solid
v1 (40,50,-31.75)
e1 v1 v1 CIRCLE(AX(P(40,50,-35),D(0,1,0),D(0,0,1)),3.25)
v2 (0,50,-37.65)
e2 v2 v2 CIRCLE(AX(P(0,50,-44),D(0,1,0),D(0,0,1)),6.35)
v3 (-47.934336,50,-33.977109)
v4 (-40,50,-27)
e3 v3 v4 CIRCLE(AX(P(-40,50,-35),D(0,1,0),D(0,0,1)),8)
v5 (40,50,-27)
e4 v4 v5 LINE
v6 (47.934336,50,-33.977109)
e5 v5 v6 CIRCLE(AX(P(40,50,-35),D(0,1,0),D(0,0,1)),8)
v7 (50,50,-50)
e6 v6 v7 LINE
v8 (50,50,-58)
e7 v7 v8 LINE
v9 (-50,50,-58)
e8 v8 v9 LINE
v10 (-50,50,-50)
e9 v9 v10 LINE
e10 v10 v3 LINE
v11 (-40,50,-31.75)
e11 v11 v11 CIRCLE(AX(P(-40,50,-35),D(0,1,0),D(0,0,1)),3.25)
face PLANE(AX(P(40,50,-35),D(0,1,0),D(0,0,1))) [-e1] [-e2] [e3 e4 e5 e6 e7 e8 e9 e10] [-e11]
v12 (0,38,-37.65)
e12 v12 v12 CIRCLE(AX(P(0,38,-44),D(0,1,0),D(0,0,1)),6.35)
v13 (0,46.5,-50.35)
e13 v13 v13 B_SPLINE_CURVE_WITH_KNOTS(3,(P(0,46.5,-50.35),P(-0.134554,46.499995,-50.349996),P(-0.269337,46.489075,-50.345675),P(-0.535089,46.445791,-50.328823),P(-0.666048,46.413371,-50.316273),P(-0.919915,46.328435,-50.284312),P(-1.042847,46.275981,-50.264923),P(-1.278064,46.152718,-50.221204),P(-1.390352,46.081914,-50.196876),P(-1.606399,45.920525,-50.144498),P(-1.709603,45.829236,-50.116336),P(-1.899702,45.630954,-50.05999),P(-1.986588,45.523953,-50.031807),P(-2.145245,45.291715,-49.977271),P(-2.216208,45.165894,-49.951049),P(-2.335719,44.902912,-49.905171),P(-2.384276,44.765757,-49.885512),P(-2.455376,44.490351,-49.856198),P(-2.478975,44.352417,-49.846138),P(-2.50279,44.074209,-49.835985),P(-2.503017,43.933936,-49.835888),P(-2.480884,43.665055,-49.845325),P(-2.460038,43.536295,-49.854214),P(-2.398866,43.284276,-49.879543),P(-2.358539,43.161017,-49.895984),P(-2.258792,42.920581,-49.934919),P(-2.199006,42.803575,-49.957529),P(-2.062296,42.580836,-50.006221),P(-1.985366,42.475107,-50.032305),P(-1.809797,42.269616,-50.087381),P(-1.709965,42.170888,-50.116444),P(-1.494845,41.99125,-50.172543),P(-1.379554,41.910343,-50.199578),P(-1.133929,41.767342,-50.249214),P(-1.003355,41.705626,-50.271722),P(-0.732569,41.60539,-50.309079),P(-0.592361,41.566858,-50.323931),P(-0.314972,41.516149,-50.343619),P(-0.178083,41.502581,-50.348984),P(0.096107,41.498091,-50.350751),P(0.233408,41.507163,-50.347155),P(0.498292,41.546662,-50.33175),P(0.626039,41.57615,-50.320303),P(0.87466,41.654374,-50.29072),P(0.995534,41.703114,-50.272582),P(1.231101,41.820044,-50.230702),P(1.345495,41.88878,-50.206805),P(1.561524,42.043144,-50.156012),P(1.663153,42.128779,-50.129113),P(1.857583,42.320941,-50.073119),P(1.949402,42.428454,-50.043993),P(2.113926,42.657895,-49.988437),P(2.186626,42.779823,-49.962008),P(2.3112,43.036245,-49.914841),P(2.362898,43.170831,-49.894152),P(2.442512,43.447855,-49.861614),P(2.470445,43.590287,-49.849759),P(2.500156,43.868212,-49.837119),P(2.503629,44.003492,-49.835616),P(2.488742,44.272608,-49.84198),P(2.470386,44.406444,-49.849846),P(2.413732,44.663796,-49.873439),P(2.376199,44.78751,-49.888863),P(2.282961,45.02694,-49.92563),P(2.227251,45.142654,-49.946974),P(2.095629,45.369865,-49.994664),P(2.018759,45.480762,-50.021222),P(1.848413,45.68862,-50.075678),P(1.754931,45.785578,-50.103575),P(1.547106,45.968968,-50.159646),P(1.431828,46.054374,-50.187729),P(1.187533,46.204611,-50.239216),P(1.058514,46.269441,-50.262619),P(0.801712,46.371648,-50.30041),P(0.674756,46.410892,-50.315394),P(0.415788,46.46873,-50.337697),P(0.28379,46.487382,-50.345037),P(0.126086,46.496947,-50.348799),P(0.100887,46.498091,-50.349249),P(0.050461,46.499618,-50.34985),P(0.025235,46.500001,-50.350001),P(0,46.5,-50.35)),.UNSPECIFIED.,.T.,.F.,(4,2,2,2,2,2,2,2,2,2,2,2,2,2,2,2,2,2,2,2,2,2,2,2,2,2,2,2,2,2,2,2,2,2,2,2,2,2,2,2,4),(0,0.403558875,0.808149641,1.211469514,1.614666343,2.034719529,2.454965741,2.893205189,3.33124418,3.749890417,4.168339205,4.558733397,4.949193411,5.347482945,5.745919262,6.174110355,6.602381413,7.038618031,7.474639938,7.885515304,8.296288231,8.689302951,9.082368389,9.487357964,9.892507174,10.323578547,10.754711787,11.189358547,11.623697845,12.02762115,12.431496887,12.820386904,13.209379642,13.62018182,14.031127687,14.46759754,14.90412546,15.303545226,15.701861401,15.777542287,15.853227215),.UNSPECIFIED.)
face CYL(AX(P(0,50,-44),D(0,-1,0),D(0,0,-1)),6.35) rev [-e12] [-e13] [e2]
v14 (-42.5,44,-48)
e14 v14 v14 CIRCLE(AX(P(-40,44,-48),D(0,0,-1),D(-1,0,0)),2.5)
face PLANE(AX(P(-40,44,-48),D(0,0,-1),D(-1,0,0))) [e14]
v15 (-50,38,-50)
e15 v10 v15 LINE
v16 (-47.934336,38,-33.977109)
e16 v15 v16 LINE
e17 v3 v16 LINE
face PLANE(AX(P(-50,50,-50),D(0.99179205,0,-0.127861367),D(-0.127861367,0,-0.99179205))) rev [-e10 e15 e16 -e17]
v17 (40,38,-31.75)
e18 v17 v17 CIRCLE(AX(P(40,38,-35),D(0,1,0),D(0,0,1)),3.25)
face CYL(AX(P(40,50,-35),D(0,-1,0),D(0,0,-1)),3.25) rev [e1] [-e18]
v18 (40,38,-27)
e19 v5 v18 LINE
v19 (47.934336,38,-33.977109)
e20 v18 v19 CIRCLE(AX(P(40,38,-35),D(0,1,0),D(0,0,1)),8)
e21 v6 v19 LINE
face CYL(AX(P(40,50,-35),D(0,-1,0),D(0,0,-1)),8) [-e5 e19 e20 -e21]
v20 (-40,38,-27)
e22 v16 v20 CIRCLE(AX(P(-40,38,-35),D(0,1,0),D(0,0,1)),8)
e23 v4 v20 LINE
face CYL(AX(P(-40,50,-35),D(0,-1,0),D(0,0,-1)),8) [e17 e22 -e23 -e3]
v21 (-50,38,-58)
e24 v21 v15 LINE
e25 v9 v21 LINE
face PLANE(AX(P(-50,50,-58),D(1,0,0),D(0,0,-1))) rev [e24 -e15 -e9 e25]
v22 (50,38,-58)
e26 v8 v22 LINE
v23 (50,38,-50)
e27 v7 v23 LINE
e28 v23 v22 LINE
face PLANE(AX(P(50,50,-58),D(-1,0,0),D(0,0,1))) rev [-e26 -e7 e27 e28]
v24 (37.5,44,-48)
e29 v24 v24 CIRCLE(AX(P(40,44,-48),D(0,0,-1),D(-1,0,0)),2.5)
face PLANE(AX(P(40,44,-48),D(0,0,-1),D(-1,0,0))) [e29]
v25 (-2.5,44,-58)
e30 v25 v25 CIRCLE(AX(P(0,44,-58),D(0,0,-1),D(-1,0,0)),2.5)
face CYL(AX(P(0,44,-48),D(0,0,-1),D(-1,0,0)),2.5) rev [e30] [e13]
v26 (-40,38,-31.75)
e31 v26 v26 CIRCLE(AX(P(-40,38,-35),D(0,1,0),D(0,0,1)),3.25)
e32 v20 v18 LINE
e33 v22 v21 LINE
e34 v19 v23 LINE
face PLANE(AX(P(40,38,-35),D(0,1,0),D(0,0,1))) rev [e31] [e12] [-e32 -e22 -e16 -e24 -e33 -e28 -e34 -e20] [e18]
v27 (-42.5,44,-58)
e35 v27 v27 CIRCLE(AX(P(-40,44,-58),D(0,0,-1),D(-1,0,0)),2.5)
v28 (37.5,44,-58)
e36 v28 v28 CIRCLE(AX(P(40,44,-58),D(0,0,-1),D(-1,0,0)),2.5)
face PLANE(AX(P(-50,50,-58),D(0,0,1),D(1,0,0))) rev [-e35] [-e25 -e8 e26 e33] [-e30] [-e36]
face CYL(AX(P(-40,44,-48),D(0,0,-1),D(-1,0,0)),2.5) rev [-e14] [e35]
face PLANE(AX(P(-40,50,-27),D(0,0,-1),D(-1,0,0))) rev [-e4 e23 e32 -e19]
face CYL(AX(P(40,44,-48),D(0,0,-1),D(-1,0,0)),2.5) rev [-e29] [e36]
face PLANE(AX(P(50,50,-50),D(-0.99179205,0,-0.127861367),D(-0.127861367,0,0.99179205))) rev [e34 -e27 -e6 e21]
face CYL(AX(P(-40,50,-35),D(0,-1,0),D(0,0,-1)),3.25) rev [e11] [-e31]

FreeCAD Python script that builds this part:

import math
import FreeCAD as App
import Part
import Sketcher
from FreeCAD import Vector

doc = App.newDocument("Part")
body = doc.addObject("PartDesign::Body", "Body")

sketch1 = body.newObject("Sketcher::SketchObject", "Sketch")
sketch1.AttachmentSupport = (doc.getObject("XZ_Plane"), [""])
sketch1.MapMode = "FlatFace"
sketch1.addGeometry([
    Part.LineSegment(Vector(40, -57, 0), Vector(-40, -57, 0)),
    Part.ArcOfCircle(Part.Circle(Vector(-40, -35, 0), Vector(0, 0, 1), 22), math.radians(150.670332), math.radians(270)),
    Part.LineSegment(Vector(-59.179946, -24.223653, 0), Vector(-47.255333, -3, 0)),
    Part.LineSegment(Vector(-47.255333, -3, 0), Vector(-32.311028, -3, 0)),
    Part.ArcOfCircle(Part.Circle(Vector(0, 0, 0), Vector(0, 0, 1), 32.45), math.radians(-174.695435), math.radians(180)),
    Part.LineSegment(Vector(-32.45, 0, 0), Vector(-47.255333, 0, 0)),
    Part.LineSegment(Vector(-47.255333, 0, 0), Vector(-47.255333, 10, 0)),
    Part.LineSegment(Vector(-47.255333, 10, 0), Vector(-41.255333, 10, 0)),
    Part.ArcOfCircle(Part.Circle(Vector(0, 0, 0), Vector(0, 0, 1), 42.45), math.radians(26.185554), math.radians(166.374701)),
    Part.LineSegment(Vector(38.093342, 18.732319, 0), Vector(59.742133, -25.291849, 0)),
    Part.ArcOfCircle(Part.Circle(Vector(40, -35, 0), Vector(0, 0, 1), 22), math.radians(-90), math.radians(26.185554)),
    Part.Circle(Vector(-40, -35, 0), Vector(0, 0, 1), 14),
    Part.Circle(Vector(40, -35, 0), Vector(0, 0, 1), 14),
    Part.Circle(Vector(0, -44, 0), Vector(0, 0, 1), 5),
], False)
sketch1.addConstraint([
    Sketcher.Constraint("Tangent", 0, 2, 1, 2),
    Sketcher.Constraint("Tangent", 1, 1, 2, 1),
    Sketcher.Constraint("Coincident", 2, 2, 3, 1),
    Sketcher.Constraint("Coincident", 3, 2, 4, 1),
    Sketcher.Constraint("Coincident", 4, 2, 5, 1),
    Sketcher.Constraint("Coincident", 5, 2, 6, 1),
    Sketcher.Constraint("Coincident", 6, 2, 7, 1),
    Sketcher.Constraint("Coincident", 7, 2, 8, 2),
    Sketcher.Constraint("Tangent", 8, 1, 9, 1),
    Sketcher.Constraint("Tangent", 9, 2, 10, 2),
    Sketcher.Constraint("Tangent", 10, 1, 0, 1),
    Sketcher.Constraint("Horizontal", 0),
    Sketcher.Constraint("Horizontal", 3),
    Sketcher.Constraint("Horizontal", 5),
    Sketcher.Constraint("Vertical", 6),
    Sketcher.Constraint("Horizontal", 7),
    Sketcher.Constraint("Coincident", 4, 3, -1, 1),
    Sketcher.Constraint("Coincident", 8, 3, -1, 1),
    Sketcher.Constraint("Coincident", 11, 3, 1, 3),
    Sketcher.Constraint("Coincident", 12, 3, 10, 3),
    Sketcher.Constraint("Equal", 1, 10),
    Sketcher.Constraint("Equal", 11, 12),
    Sketcher.Constraint("PointOnObject", 13, 3, -2),
    Sketcher.Constraint("PointOnObject", 4, 2, -1),
    Sketcher.Constraint("Vertical", 2, 2, 5, 2),
    Sketcher.Constraint("Diameter", 11, 28.0),
    Sketcher.Constraint("Diameter", 13, 10.0),
    Sketcher.Constraint("Radius", 1, 22.0),
    Sketcher.Constraint("DistanceX", 0, 2, 0, 1, 80.0),
    Sketcher.Constraint("DistanceX", 7, 1, 7, 2, 6.0),
    Sketcher.Constraint("DistanceY", 6, 1, 6, 2, 10.0),
    Sketcher.Constraint("Radius", 4, 32.45),
    Sketcher.Constraint("Radius", 8, 42.45),
    Sketcher.Constraint("DistanceX", 1, 3, -1, 1, 40.0),
    Sketcher.Constraint("DistanceY", 1, 3, -1, 1, 35.0),
    Sketcher.Constraint("DistanceY", 13, 3, -1, 1, 44.0),
    Sketcher.Constraint("DistanceY", 2, 2, -1, 1, 3.0),
])
pad1 = body.newObject("PartDesign::Pad", "Pad")
pad1.Profile = sketch1
pad1.Length = 38
pad1.Reversed = True
body2 = doc.addObject("PartDesign::Body", "Body001")

sketch2 = body2.newObject("Sketcher::SketchObject", "Sketch001")
sketch2.AttachmentSupport = (doc.getObject("XZ_Plane001"), [""])
sketch2.MapMode = "FlatFace"
sketch2.AttachmentOffset = App.Placement(Vector(0, 0, -38), App.Rotation())
sketch2.addGeometry([
    Part.LineSegment(Vector(-40, -27, 0), Vector(40, -27, 0)),
    Part.ArcOfCircle(Part.Circle(Vector(40, -35, 0), Vector(0, 0, 1), 8), math.radians(7.346026), math.radians(90)),
    Part.LineSegment(Vector(47.934336, -33.977109, 0), Vector(50, -50, 0)),
    Part.LineSegment(Vector(50, -50, 0), Vector(50, -58, 0)),
    Part.LineSegment(Vector(50, -58, 0), Vector(-50, -58, 0)),
    Part.LineSegment(Vector(-50, -58, 0), Vector(-50, -50, 0)),
    Part.LineSegment(Vector(-50, -50, 0), Vector(-47.934336, -33.977109, 0)),
    Part.ArcOfCircle(Part.Circle(Vector(-40, -35, 0), Vector(0, 0, 1), 8), math.radians(90), math.radians(172.653974)),
    Part.Circle(Vector(-40, -35, 0), Vector(0, 0, 1), 3.25),
    Part.Circle(Vector(40, -35, 0), Vector(0, 0, 1), 3.25),
    Part.Circle(Vector(0, -44, 0), Vector(0, 0, 1), 6.35),
], False)
sketch2.addConstraint([
    Sketcher.Constraint("Tangent", 0, 2, 1, 2),
    Sketcher.Constraint("Tangent", 1, 1, 2, 1),
    Sketcher.Constraint("Coincident", 2, 2, 3, 1),
    Sketcher.Constraint("Coincident", 3, 2, 4, 1),
    Sketcher.Constraint("Coincident", 4, 2, 5, 1),
    Sketcher.Constraint("Coincident", 5, 2, 6, 1),
    Sketcher.Constraint("Tangent", 6, 2, 7, 2),
    Sketcher.Constraint("Tangent", 7, 1, 0, 1),
    Sketcher.Constraint("Horizontal", 0),
    Sketcher.Constraint("Vertical", 3),
    Sketcher.Constraint("Horizontal", 4),
    Sketcher.Constraint("Vertical", 5),
    Sketcher.Constraint("Coincident", 8, 3, 7, 3),
    Sketcher.Constraint("Coincident", 9, 3, 1, 3),
    Sketcher.Constraint("Equal", 1, 7),
    Sketcher.Constraint("Equal", 8, 9),
    Sketcher.Constraint("Symmetric", 2, 2, 5, 2, -2),
    Sketcher.Constraint("PointOnObject", 10, 3, -2),
    Sketcher.Constraint("Horizontal", 1, 1, 6, 2),
    Sketcher.Constraint("Radius", 1, 8.0),
    Sketcher.Constraint("Diameter", 8, 6.5),
    Sketcher.Constraint("Diameter", 10, 12.7),
    Sketcher.Constraint("DistanceX", 0, 1, 0, 2, 80.0),
    Sketcher.Constraint("DistanceX", 4, 2, 4, 1, 100.0),
    Sketcher.Constraint("DistanceY", 3, 2, 3, 1, 8.0),
    Sketcher.Constraint("DistanceY", 1, 3, -1, 1, 35.0),
    Sketcher.Constraint("DistanceY", 10, 3, -1, 1, 44.0),
    Sketcher.Constraint("DistanceY", 2, 2, -1, 1, 50.0),
])
pad2 = body2.newObject("PartDesign::Pad", "Pad001")
pad2.Profile = sketch2
pad2.Length = 12
pad2.Reversed = True

sketch3 = body2.newObject("Sketcher::SketchObject", "Sketch002")
sketch3.AttachmentSupport = (doc.getObject("XY_Plane001"), [""])
sketch3.MapMode = "FlatFace"
sketch3.AttachmentOffset = App.Placement(Vector(0, 0, -58), App.Rotation())
sketch3.addGeometry([
    Part.Circle(Vector(0, 44, 0), Vector(0, 0, 1), 2.5),
    Part.Circle(Vector(-40, 44, 0), Vector(0, 0, 1), 2.5),
    Part.Circle(Vector(40, 44, 0), Vector(0, 0, 1), 2.5),
], False)
sketch3.addConstraint([
    Sketcher.Constraint("Equal", 0, 1),
    Sketcher.Constraint("Equal", 1, 2),
    Sketcher.Constraint("Symmetric", 1, 3, 2, 3, -2),
    Sketcher.Constraint("PointOnObject", 0, 3, -2),
    Sketcher.Constraint("Horizontal", 0, 3, 1, 3),
    Sketcher.Constraint("Diameter", 0, 5.0),
    Sketcher.Constraint("DistanceY", -1, 1, 0, 3, 44.0),
    Sketcher.Constraint("DistanceX", 1, 3, -1, 1, 40.0),
])
pocket1 = body2.newObject("PartDesign::Pocket", "Pocket")
pocket1.Profile = sketch3
pocket1.Length = 10
pocket1.Reversed = True
body.Visibility = False

doc.recompute()
